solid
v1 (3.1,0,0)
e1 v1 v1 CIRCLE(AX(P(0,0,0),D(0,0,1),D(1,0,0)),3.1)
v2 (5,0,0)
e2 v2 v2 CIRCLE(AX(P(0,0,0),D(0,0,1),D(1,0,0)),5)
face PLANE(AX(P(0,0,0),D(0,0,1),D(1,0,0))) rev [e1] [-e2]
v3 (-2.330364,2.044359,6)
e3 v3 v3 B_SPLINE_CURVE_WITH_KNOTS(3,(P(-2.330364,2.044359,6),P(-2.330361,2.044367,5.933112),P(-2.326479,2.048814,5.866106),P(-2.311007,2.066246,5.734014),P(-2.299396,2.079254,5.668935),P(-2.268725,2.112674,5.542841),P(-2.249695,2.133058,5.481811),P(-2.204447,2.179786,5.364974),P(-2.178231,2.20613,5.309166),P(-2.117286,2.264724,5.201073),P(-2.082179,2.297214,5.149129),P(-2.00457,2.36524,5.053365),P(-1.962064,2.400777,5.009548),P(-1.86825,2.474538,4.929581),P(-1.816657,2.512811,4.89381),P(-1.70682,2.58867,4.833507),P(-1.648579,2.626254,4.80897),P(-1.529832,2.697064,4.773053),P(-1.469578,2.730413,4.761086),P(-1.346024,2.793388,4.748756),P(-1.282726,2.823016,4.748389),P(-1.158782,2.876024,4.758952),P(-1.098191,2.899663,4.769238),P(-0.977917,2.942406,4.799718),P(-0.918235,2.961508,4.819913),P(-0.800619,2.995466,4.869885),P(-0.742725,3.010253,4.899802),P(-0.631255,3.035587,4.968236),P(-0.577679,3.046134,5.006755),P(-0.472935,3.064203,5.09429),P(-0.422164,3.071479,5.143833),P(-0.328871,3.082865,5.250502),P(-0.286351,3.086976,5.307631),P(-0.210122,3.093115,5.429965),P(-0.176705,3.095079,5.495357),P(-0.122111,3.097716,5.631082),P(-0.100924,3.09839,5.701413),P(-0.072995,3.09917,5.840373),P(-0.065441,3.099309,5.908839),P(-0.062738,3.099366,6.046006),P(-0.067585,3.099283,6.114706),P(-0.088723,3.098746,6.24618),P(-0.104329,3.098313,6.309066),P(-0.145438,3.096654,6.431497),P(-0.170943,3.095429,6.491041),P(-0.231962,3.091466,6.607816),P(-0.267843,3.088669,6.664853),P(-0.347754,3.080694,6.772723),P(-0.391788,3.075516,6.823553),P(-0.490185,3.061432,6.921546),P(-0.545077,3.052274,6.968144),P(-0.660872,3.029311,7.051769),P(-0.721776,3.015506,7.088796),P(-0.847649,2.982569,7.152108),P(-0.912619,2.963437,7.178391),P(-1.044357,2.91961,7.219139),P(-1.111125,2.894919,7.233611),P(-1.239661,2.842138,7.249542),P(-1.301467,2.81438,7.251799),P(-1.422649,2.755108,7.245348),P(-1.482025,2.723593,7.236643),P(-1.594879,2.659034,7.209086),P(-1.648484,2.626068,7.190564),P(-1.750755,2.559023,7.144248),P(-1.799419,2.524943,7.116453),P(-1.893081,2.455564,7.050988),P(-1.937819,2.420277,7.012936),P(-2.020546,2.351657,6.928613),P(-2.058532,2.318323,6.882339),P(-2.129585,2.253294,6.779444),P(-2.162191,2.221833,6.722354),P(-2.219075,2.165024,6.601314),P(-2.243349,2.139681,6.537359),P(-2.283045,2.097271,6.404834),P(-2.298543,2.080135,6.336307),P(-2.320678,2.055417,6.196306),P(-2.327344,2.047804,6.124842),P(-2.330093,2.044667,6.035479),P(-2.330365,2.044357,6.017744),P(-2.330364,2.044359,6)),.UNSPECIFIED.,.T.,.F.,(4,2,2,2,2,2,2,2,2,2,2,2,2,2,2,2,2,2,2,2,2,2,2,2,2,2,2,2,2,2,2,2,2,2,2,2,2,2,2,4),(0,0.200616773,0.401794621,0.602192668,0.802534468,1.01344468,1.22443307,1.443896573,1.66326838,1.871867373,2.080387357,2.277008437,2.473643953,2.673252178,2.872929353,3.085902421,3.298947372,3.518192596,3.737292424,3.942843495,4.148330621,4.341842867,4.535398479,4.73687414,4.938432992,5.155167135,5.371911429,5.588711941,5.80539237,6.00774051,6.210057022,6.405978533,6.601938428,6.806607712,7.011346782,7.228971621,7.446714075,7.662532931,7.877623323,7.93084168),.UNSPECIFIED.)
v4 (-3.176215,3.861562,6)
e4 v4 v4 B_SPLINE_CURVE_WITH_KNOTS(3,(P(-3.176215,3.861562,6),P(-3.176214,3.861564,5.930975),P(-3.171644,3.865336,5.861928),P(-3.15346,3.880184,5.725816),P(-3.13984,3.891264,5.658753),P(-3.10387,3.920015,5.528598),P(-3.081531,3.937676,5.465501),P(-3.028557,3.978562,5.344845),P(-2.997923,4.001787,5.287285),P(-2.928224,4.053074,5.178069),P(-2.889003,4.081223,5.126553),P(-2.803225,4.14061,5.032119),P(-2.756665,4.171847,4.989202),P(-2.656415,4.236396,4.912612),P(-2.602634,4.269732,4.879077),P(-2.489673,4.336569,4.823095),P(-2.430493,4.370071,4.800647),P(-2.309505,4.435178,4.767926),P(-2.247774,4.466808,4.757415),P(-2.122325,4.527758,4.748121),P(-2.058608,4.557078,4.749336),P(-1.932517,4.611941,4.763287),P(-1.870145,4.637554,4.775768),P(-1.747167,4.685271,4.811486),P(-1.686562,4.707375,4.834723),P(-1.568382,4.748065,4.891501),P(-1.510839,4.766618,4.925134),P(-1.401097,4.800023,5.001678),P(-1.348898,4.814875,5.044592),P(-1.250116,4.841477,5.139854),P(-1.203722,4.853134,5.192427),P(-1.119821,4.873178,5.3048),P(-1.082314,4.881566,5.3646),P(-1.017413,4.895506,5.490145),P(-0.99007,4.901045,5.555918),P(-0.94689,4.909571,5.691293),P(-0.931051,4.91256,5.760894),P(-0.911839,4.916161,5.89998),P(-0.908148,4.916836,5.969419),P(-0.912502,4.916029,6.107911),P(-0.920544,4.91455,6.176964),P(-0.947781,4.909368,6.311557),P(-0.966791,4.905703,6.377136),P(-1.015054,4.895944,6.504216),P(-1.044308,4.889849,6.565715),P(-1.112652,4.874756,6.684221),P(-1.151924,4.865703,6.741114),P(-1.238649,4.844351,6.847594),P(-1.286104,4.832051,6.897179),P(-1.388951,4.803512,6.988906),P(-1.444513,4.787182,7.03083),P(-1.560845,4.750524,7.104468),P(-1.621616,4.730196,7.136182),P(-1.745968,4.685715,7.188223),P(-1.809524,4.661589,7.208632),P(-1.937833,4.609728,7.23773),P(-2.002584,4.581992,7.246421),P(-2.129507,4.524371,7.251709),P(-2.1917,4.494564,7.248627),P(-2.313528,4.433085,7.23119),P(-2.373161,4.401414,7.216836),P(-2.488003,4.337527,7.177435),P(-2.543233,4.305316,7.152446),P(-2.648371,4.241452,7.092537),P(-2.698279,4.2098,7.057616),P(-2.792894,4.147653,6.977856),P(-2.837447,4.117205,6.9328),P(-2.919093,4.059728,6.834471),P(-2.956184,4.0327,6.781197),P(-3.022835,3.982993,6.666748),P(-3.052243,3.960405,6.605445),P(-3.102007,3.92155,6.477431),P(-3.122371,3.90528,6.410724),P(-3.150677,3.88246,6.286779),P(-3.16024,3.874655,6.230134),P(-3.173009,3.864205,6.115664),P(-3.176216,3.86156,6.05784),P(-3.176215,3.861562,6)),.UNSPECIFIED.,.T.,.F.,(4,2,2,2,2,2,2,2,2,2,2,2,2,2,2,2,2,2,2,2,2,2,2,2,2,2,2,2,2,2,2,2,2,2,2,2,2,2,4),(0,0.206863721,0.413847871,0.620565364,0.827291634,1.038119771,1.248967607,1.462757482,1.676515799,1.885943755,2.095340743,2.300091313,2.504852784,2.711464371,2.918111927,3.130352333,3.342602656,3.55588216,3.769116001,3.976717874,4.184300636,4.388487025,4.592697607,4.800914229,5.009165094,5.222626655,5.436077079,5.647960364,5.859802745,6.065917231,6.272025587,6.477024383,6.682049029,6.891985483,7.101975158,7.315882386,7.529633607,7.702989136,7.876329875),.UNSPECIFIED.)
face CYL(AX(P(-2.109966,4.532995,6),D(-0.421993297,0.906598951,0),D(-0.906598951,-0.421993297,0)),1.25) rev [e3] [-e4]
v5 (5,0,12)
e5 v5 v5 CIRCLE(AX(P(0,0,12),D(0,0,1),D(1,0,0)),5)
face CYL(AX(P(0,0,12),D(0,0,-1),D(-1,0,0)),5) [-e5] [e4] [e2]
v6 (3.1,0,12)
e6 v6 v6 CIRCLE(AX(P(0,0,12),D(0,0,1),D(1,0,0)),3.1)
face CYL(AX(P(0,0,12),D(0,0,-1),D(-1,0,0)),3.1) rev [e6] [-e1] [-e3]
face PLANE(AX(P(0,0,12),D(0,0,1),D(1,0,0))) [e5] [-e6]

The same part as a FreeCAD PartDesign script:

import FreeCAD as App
import Part
import Sketcher
from FreeCAD import Vector

doc = App.newDocument("Part")
body = doc.addObject("PartDesign::Body", "Body")

sketch1 = body.newObject("Sketcher::SketchObject", "Sketch")
sketch1.AttachmentSupport = (doc.getObject("XY_Plane"), [""])
sketch1.MapMode = "FlatFace"
sketch1.addGeometry(Part.Circle(Vector(0, 0, 0), Vector(0, 0, 1), 5), False)
sketch1.addGeometry(Part.Circle(Vector(0, 0, 0), Vector(0, 0, 1), 3.1), False)
sketch1.addConstraint(Sketcher.Constraint("Coincident", 0, 3, -1, 1))
sketch1.addConstraint(Sketcher.Constraint("Coincident", 1, 3, -1, 1))
sketch1.addConstraint(Sketcher.Constraint("Diameter", 0, 10.0))
sketch1.addConstraint(Sketcher.Constraint("Diameter", 1, 6.2))
pad1 = body.newObject("PartDesign::Pad", "Pad")
pad1.Profile = sketch1
pad1.Length = 12

sketch2 = body.newObject("Sketcher::SketchObject", "Sketch001")
sketch2.Placement = App.Placement(Vector(-2.109966, 4.532995, 0), App.Rotation(Vector(0.906598951, 0.421993297, 0), Vector(0, 0, -1.000000001), Vector(-0.421993297, 0.906598951, 0), "ZXY"))
sketch2.addGeometry(Part.Circle(Vector(0, -6, 0), Vector(0, 0, 1), 1.2), False)
sketch2.addConstraint(Sketcher.Constraint("PointOnObject", 0, 3, -2))
sketch2.addConstraint(Sketcher.Constraint("Diameter", 0, 2.5))
sketch2.addConstraint(Sketcher.Constraint("DistanceY", 0, 3, -1, 1, 6.0))
doc.recompute()
hole = body.newObject("PartDesign::Hole", "Hole")
hole.Profile = sketch2
hole.ThreadType = "None"
hole.Diameter = 2.5
hole.DepthType = "Dimension"
hole.Depth = 4
hole.DrillPoint = "Angled"
hole.DrillPointAngle = 118

doc.recompute()
